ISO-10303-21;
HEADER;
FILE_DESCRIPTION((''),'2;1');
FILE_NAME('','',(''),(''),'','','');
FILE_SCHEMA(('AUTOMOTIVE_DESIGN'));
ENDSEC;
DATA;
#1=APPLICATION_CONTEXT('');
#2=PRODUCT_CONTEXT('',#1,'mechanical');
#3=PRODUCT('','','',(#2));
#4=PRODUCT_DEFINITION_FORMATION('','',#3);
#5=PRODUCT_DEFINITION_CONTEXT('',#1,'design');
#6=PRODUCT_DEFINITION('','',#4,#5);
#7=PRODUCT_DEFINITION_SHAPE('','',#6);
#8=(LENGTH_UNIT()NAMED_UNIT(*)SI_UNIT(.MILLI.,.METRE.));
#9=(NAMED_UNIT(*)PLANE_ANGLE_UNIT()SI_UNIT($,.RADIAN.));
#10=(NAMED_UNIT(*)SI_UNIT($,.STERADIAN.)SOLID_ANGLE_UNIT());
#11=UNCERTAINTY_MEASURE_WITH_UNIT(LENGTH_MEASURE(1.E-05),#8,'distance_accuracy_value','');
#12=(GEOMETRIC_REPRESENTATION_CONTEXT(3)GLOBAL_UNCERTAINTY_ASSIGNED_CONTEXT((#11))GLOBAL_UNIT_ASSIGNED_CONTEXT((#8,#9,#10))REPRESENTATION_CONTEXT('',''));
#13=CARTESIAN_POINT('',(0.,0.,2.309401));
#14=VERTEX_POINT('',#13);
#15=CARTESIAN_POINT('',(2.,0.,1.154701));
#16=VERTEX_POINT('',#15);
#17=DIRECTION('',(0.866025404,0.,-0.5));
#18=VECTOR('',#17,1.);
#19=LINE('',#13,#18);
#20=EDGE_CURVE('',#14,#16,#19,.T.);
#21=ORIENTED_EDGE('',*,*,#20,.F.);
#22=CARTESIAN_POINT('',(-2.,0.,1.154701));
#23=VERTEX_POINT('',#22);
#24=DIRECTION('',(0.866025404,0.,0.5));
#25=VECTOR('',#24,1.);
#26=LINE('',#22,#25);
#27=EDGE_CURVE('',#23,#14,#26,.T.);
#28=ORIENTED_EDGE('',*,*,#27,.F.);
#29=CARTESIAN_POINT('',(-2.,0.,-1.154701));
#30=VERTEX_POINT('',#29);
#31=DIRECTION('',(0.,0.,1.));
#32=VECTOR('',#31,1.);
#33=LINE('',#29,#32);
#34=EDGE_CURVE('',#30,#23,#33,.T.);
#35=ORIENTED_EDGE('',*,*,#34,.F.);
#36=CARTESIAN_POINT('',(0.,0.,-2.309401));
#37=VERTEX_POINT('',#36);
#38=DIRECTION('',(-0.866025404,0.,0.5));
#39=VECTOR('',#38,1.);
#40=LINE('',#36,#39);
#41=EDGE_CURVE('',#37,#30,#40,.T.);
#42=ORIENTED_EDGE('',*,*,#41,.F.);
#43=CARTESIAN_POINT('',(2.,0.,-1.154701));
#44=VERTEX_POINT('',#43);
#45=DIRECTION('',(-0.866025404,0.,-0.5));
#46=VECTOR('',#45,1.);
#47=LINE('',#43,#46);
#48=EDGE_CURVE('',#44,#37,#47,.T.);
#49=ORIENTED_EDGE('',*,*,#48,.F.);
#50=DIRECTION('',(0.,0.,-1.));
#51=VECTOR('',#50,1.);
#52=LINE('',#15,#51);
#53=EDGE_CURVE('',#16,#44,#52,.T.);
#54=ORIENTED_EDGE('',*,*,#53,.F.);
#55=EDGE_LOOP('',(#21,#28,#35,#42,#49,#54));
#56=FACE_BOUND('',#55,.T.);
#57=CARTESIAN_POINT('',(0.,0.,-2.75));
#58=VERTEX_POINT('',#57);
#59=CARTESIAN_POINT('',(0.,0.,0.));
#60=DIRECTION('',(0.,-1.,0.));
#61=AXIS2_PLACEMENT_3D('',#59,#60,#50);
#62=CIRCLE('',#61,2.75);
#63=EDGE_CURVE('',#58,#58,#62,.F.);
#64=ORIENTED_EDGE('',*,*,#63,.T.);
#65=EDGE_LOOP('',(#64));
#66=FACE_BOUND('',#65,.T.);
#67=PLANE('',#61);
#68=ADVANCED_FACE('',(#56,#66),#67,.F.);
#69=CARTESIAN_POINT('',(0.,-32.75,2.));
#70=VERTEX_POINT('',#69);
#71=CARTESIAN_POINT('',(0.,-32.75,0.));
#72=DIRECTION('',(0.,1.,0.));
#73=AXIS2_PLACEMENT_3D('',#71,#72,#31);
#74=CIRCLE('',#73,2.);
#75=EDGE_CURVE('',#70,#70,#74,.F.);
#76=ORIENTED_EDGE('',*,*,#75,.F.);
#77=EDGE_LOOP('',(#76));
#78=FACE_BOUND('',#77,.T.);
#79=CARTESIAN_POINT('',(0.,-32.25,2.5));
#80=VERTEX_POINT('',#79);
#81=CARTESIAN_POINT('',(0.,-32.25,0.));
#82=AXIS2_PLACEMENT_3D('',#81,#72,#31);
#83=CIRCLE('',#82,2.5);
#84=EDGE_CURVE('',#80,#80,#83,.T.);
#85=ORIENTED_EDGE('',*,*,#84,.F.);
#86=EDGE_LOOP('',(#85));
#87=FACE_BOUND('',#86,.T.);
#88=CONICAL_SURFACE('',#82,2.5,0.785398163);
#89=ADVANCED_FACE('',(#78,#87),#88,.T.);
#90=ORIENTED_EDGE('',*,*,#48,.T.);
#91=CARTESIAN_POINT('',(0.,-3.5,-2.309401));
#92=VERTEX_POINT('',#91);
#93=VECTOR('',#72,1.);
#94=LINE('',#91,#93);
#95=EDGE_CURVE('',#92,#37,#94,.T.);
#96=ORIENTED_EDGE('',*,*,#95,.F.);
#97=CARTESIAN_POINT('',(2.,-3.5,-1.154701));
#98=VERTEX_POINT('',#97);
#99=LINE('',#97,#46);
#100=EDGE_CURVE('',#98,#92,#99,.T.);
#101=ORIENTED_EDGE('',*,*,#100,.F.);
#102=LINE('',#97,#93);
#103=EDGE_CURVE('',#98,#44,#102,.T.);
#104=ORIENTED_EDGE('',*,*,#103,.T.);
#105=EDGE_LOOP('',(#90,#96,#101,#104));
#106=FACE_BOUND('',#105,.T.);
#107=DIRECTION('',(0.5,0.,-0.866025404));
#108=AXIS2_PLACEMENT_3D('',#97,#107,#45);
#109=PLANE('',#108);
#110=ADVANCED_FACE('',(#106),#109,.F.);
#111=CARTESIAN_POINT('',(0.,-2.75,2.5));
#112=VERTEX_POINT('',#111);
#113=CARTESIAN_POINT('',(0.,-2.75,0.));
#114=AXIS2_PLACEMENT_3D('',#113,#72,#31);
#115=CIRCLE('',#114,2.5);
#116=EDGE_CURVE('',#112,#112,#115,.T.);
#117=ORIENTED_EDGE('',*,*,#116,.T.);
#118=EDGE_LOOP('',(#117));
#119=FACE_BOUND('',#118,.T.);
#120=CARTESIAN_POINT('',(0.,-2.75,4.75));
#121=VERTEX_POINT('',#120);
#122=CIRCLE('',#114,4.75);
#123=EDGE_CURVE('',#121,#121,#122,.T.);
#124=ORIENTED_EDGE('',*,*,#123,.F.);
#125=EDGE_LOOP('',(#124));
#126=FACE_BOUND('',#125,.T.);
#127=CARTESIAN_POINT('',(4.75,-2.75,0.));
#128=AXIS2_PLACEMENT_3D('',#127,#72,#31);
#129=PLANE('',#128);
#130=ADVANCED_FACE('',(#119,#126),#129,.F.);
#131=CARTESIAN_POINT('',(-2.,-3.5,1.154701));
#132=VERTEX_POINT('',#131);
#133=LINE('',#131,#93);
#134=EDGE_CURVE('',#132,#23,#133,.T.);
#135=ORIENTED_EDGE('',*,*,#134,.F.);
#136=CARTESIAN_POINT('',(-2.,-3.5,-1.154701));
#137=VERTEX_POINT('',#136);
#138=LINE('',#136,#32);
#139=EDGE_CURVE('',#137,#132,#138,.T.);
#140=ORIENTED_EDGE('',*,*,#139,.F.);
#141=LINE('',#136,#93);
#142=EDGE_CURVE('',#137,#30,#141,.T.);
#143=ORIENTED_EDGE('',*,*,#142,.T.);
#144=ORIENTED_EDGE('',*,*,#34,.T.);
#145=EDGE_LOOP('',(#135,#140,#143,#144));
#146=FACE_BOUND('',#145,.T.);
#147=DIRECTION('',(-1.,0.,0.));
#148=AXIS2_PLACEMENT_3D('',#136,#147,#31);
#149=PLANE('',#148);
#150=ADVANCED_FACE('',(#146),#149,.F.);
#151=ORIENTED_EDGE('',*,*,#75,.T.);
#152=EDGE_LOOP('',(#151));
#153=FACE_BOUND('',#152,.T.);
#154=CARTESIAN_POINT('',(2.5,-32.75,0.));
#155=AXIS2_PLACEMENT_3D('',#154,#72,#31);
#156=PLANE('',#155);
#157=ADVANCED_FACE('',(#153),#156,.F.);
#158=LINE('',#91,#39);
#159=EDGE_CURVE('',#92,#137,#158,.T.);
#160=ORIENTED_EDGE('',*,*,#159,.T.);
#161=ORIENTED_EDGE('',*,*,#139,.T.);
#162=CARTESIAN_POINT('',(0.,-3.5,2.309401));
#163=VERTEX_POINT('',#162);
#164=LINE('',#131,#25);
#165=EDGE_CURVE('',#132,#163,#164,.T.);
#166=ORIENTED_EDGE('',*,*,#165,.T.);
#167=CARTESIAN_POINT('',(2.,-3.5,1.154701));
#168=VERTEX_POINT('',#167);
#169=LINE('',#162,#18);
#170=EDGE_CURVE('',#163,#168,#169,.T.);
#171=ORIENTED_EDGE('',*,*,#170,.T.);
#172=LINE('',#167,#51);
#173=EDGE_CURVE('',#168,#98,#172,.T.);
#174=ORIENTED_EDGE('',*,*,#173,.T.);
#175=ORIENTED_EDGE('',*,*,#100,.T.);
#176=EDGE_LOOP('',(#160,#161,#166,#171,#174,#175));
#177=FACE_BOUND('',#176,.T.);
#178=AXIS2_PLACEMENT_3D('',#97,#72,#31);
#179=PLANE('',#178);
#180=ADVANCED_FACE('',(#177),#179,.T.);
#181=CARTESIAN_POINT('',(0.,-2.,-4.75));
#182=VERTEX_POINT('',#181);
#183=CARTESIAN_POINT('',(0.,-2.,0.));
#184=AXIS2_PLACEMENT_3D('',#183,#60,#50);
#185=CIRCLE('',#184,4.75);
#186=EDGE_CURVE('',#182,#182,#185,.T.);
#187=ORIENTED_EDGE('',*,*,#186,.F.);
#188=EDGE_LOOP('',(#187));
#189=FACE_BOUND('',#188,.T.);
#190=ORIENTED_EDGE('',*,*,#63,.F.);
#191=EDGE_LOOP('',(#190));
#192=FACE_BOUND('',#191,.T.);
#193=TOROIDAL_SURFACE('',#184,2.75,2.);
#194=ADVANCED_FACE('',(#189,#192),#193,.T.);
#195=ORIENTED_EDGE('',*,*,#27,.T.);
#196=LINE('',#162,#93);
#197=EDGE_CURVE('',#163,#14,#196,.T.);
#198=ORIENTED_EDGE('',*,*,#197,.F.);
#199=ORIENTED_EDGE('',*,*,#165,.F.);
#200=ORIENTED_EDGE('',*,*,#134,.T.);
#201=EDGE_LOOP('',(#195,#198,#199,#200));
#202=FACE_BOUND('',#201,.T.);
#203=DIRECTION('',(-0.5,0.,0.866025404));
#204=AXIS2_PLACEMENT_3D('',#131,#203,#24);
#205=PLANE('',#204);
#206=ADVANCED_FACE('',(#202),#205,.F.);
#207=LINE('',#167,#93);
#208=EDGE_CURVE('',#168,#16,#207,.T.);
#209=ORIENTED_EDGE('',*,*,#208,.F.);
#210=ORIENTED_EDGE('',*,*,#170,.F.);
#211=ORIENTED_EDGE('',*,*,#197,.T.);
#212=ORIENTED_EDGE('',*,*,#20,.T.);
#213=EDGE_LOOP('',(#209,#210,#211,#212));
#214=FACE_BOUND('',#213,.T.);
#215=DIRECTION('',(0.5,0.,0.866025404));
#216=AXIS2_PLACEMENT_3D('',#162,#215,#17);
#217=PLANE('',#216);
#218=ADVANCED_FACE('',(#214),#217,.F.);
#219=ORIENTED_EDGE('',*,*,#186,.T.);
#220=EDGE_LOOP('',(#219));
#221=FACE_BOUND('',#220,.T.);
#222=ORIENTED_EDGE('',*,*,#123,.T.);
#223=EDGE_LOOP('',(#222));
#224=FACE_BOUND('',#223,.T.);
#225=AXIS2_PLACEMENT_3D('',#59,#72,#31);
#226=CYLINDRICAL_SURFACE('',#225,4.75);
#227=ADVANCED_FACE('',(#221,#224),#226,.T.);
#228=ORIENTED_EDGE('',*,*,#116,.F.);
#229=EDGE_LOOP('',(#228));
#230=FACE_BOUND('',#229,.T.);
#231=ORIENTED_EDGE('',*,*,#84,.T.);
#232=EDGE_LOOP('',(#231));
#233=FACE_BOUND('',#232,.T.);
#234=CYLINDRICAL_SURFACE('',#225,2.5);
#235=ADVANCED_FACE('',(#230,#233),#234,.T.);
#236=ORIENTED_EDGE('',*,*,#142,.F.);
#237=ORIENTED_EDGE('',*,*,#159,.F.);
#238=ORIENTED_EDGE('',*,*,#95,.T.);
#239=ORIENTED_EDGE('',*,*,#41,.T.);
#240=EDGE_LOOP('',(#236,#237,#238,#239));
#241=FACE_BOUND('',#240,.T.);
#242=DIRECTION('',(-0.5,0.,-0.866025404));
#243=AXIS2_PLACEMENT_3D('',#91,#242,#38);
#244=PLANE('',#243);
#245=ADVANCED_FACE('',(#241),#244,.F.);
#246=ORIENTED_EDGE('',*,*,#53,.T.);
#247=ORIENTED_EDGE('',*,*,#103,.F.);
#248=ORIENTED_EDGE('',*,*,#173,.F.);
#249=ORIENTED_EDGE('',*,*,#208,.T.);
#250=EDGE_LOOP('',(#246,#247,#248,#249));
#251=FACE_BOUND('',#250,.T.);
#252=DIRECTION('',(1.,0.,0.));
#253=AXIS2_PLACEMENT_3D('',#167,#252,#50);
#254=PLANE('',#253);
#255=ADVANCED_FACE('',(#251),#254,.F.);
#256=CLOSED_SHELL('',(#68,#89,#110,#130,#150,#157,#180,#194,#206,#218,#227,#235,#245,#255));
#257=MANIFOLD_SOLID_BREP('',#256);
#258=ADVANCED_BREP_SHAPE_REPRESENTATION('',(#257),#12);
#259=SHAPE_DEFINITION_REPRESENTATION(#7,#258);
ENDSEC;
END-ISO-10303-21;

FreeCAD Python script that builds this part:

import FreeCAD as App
import Part
import Sketcher
from FreeCAD import Vector
Q = App.Units.Quantity


def edges_at(feature, points):
    """Names of the edges that pass closest to the given points."""
    edges = feature.Shape.Edges
    near = lambda p: min(range(len(edges)), key=lambda i: edges[i].distToShape(Part.Vertex(*p))[0])
    return sorted({f"Edge{near(p) + 1}" for p in points})

doc = App.newDocument("Part")
params = doc.addObject("Spreadsheet::Sheet", "Params")
for row, (alias, value) in enumerate([
    ("sketch1_height", "30 mm"),
    ("sketch1_width", "2.5 mm"),
    ("sketch1_width2", "4.75 mm"),
    ("sketch1_height2", "32.75 mm"),
    ("revolution_angle", "360 deg"),
    ("pocket1_length", "3.5 mm"),
    ("chamfer_size", "0.5 mm"),
    ("fillet_radius", "2 mm"),
], start=1):
    params.set(f"A{row}", alias)
    params.set(f"B{row}", "=" + value)
    params.setAlias(f"B{row}", alias)

body = doc.addObject("PartDesign::Body", "Body")

sketch1 = doc.addObject("Sketcher::SketchObject", "Sketch")
body.addObject(sketch1)
sketch1.AttachmentSupport = (doc.XY_Plane, [""])
sketch1.MapMode = "FlatFace"
sketch1.addGeometry([
    Part.LineSegment(Vector(4.75, 0, 0), Vector(0, 0, 0)),
    Part.LineSegment(Vector(0, 0, 0), Vector(0, -32.75, 0)),
    Part.LineSegment(Vector(0, -32.75, 0), Vector(2.5, -32.75, 0)),
    Part.LineSegment(Vector(2.5, -32.75, 0), Vector(2.5, -2.75, 0)),
    Part.LineSegment(Vector(2.5, -2.75, 0), Vector(4.75, -2.75, 0)),
    Part.LineSegment(Vector(4.75, -2.75, 0), Vector(4.75, 0, 0)),
], False)
sketch1.addConstraint([
    Sketcher.Constraint("Coincident", 0, 2, 1, 1),
    Sketcher.Constraint("Coincident", 1, 2, 2, 1),
    Sketcher.Constraint("Coincident", 2, 2, 3, 1),
    Sketcher.Constraint("Coincident", 3, 2, 4, 1),
    Sketcher.Constraint("Coincident", 4, 2, 5, 1),
    Sketcher.Constraint("Coincident", 5, 2, 0, 1),
    Sketcher.Constraint("Horizontal", 0),
    Sketcher.Constraint("Vertical", 1),
    Sketcher.Constraint("Horizontal", 2),
    Sketcher.Constraint("Vertical", 3),
    Sketcher.Constraint("Horizontal", 4),
    Sketcher.Constraint("Vertical", 5),
    Sketcher.Constraint("Coincident", 0, 2, -1, 1),
    Sketcher.Constraint("DistanceY", 3, 1, 3, 2, 30.0),
    Sketcher.Constraint("DistanceX", 2, 1, 2, 2, 2.5),
    Sketcher.Constraint("DistanceX", 0, 2, 0, 1, 4.75),
    Sketcher.Constraint("DistanceY", 1, 2, 1, 1, 32.75),
])
sketch1.setExpression("Constraints[13]", "Params.sketch1_height")
sketch1.setExpression("Constraints[14]", "Params.sketch1_width")
sketch1.setExpression("Constraints[15]", "Params.sketch1_width2")
sketch1.setExpression("Constraints[16]", "Params.sketch1_height2")
revolution = doc.addObject("PartDesign::Revolution", "Revolution")
body.addObject(revolution)
revolution.Profile = sketch1
revolution.ReferenceAxis = (sketch1, ["V_Axis"])
revolution.setExpression("Angle", "Params.revolution_angle")

sketch2 = doc.addObject("Sketcher::SketchObject", "Sketch001")
body.addObject(sketch2)
sketch2.AttachmentSupport = (doc.XZ_Plane, [""])
sketch2.MapMode = "FlatFace"
sketch2.addGeometry([
    Part.LineSegment(Vector(2, -1.154701, 0), Vector(0, -2.309401, 0)),
    Part.LineSegment(Vector(0, -2.309401, 0), Vector(-2, -1.154701, 0)),
    Part.LineSegment(Vector(-2, -1.154701, 0), Vector(-2, 1.154701, 0)),
    Part.LineSegment(Vector(-2, 1.154701, 0), Vector(0, 2.309401, 0)),
    Part.LineSegment(Vector(0, 2.309401, 0), Vector(2, 1.154701, 0)),
    Part.LineSegment(Vector(2, 1.154701, 0), Vector(2, -1.154701, 0)),
], False)
sketch2.addConstraint([
    Sketcher.Constraint("Coincident", 0, 2, 1, 1),
    Sketcher.Constraint("Coincident", 1, 2, 2, 1),
    Sketcher.Constraint("Coincident", 2, 2, 3, 1),
    Sketcher.Constraint("Coincident", 3, 2, 4, 1),
    Sketcher.Constraint("Coincident", 4, 2, 5, 1),
    Sketcher.Constraint("Coincident", 5, 2, 0, 1),
    Sketcher.Constraint("Vertical", 2),
    Sketcher.Constraint("Vertical", 5),
    Sketcher.Constraint("Symmetric", 0, 2, 3, 2, -1, 1),
    Sketcher.Constraint("Symmetric", 1, 2, 4, 2, -1, 1),
    Sketcher.Constraint("PointOnObject", 0, 2, -2),
    Sketcher.Constraint("Parallel", 0, 3),
    Sketcher.Constraint("Horizontal", 2, 2, 4, 2),
    Sketcher.Constraint("Angle", 0, Q("-150 deg")),
    Sketcher.Constraint("DistanceX", 1, 2, -1, 1, 2.0),
    Sketcher.Constraint("DistanceY", 2, 1, 2, 2, 2.309401),
])
pocket1 = doc.addObject("PartDesign::Pocket", "Pocket")
body.addObject(pocket1)
pocket1.Profile = sketch2
pocket1.setExpression("Length", "Params.pocket1_length")
pocket1.Reversed = True
doc.recompute()

chamfer = doc.addObject("PartDesign::Chamfer", "Chamfer")
body.addObject(chamfer)
chamfer.Base = (pocket1, edges_at(pocket1, [(-2.5, -32.75, 0)]))
chamfer.setExpression("Size", "Params.chamfer_size")
doc.recompute()

fillet = doc.addObject("PartDesign::Fillet", "Fillet")
body.addObject(fillet)
fillet.Base = (chamfer, edges_at(chamfer, [(-4.75, 0, 0)]))
fillet.setExpression("Radius", "Params.fillet_radius")

doc.recompute()
